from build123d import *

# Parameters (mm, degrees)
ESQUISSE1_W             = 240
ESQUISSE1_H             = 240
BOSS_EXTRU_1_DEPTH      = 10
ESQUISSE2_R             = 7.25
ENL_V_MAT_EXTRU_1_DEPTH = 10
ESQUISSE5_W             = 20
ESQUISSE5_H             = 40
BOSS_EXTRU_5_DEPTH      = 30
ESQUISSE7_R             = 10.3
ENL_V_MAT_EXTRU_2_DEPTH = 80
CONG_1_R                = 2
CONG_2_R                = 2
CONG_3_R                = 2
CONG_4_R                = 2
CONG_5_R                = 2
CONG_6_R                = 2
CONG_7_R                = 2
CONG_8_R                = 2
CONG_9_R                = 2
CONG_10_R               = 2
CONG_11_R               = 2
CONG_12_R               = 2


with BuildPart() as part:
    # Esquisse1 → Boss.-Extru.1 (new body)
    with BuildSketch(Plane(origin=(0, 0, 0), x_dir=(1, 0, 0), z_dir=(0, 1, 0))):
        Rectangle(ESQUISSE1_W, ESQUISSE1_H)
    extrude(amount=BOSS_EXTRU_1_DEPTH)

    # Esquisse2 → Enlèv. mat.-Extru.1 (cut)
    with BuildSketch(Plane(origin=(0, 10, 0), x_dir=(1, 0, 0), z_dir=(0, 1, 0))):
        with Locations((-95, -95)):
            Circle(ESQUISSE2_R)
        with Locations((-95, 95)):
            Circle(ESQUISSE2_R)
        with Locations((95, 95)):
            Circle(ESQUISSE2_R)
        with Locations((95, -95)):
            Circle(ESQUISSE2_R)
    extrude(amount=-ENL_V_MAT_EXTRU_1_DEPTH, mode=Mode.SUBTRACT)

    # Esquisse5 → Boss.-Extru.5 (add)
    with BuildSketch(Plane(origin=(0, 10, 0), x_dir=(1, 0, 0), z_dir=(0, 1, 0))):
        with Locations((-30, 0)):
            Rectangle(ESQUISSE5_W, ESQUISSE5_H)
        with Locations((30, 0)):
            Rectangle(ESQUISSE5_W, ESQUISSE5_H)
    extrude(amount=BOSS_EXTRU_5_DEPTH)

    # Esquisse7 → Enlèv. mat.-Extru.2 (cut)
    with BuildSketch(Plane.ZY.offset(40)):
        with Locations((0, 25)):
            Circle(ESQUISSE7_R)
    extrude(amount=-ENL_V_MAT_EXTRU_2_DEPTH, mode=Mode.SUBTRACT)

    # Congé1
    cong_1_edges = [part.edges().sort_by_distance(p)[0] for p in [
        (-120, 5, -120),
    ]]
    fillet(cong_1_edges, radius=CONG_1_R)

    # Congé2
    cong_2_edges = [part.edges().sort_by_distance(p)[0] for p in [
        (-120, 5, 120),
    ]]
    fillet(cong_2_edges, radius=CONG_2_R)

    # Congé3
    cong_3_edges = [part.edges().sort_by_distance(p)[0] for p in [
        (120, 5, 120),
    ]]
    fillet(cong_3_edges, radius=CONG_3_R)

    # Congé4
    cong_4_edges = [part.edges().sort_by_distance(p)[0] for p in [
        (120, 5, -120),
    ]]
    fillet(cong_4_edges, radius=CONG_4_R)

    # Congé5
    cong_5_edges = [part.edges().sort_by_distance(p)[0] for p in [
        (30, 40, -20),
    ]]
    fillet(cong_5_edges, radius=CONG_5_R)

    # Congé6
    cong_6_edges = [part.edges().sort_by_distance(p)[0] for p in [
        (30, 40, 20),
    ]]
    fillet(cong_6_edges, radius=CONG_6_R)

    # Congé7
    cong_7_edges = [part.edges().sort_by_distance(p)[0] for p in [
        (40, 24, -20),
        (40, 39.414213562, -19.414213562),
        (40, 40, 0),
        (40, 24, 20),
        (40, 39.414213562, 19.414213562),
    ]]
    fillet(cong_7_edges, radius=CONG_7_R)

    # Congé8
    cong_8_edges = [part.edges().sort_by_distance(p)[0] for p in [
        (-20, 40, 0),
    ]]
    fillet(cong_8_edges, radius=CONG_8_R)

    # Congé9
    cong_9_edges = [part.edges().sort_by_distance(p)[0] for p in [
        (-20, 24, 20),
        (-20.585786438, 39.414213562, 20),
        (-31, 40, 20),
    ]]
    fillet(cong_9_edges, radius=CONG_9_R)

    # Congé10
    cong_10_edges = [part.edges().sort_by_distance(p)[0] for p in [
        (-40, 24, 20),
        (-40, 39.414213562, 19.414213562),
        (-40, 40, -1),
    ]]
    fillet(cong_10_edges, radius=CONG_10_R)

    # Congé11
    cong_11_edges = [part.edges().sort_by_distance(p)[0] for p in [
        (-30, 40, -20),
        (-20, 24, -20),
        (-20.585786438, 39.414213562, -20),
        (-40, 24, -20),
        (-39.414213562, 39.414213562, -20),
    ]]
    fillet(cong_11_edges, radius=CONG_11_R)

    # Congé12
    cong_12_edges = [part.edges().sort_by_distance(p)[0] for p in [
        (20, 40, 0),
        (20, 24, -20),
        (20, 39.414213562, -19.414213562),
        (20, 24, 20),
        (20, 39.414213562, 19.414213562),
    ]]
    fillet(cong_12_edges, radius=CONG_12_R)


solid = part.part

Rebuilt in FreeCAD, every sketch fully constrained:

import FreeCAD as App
import Part
import Sketcher

V = App.Vector


def edges_at(feature, points):
    """Names of the edges that pass closest to the given points."""
    edges = feature.Shape.Edges
    near = lambda p: min(range(len(edges)), key=lambda i: edges[i].distToShape(Part.Vertex(*p))[0])
    return sorted({f"Edge{near(p) + 1}" for p in points})

doc = App.newDocument("Part")
body = doc.addObject("PartDesign::Body", "Body")

sketch1 = body.newObject("Sketcher::SketchObject", "Sketch")
sketch1.AttachmentSupport = (doc.getObject("XZ_Plane"), [""])
sketch1.MapMode = "FlatFace"
sketch1.addGeometry([
    Part.LineSegment(V(-120, -120, 0), V(-120, 120, 0)),
    Part.LineSegment(V(-120, 120, 0), V(120, 120, 0)),
    Part.LineSegment(V(120, 120, 0), V(120, -120, 0)),
    Part.LineSegment(V(120, -120, 0), V(-120, -120, 0)),
], False)
sketch1.addConstraint([
    Sketcher.Constraint("Coincident", 0, 2, 1, 1),
    Sketcher.Constraint("Coincident", 1, 2, 2, 1),
    Sketcher.Constraint("Coincident", 2, 2, 3, 1),
    Sketcher.Constraint("Coincident", 3, 2, 0, 1),
    Sketcher.Constraint("Vertical", 0),
    Sketcher.Constraint("Horizontal", 1),
    Sketcher.Constraint("Vertical", 2),
    Sketcher.Constraint("Horizontal", 3),
    Sketcher.Constraint("Symmetric", 0, 2, 2, 2, -1, 1),
    Sketcher.Constraint("Equal", 3, 0),
    Sketcher.Constraint("DistanceX", 1, 1, 1, 2, 240.0),
])
pad1 = body.newObject("PartDesign::Pad", "Pad")
pad1.Profile = sketch1
pad1.Length = 10
pad1.Reversed = True

sketch2 = body.newObject("Sketcher::SketchObject", "Sketch001")
sketch2.AttachmentSupport = (doc.getObject("XZ_Plane"), [""])
sketch2.MapMode = "FlatFace"
sketch2.AttachmentOffset = App.Placement(V(0, 0, -10), App.Rotation())
sketch2.addGeometry([
    Part.Circle(V(-95, 95, 0), V(0, 0, 1), 7),
    Part.Circle(V(-95, -95, 0), V(0, 0, 1), 7),
    Part.Circle(V(95, -95, 0), V(0, 0, 1), 7),
    Part.Circle(V(95, 95, 0), V(0, 0, 1), 7),
], False)
sketch2.addConstraint([
    Sketcher.Constraint("Equal", 0, 1),
    Sketcher.Constraint("Equal", 1, 2),
    Sketcher.Constraint("Equal", 2, 3),
    Sketcher.Constraint("Symmetric", 0, 3, 2, 3, -1, 1),
    Sketcher.Constraint("Symmetric", 1, 3, 3, 3, -1, 1),
    Sketcher.Constraint("Symmetric", 1, 3, 2, 3, -2),
    Sketcher.Constraint("Diameter", 0, 14.5),
    Sketcher.Constraint("DistanceX", 0, 3, -1, 1, 95.0),
    Sketcher.Constraint("DistanceY", -1, 1, 0, 3, 95.0),
])
pocket1 = body.newObject("PartDesign::Pocket", "Pocket")
pocket1.Profile = sketch2
pocket1.Length = 10
pocket1.Reversed = True

sketch3 = body.newObject("Sketcher::SketchObject", "Sketch002")
sketch3.AttachmentSupport = (doc.getObject("XZ_Plane"), [""])
sketch3.MapMode = "FlatFace"
sketch3.AttachmentOffset = App.Placement(V(0, 0, -10), App.Rotation())
sketch3.addGeometry([
    Part.LineSegment(V(-40, -20, 0), V(-40, 20, 0)),
    Part.LineSegment(V(-40, 20, 0), V(-20, 20, 0)),
    Part.LineSegment(V(-20, 20, 0), V(-20, -20, 0)),
    Part.LineSegment(V(-20, -20, 0), V(-40, -20, 0)),
    Part.LineSegment(V(20, -20, 0), V(20, 20, 0)),
    Part.LineSegment(V(20, 20, 0), V(40, 20, 0)),
    Part.LineSegment(V(40, 20, 0), V(40, -20, 0)),
    Part.LineSegment(V(40, -20, 0), V(20, -20, 0)),
], False)
sketch3.addConstraint([
    Sketcher.Constraint("Coincident", 0, 2, 1, 1),
    Sketcher.Constraint("Coincident", 1, 2, 2, 1),
    Sketcher.Constraint("Coincident", 2, 2, 3, 1),
    Sketcher.Constraint("Coincident", 3, 2, 0, 1),
    Sketcher.Constraint("Coincident", 4, 2, 5, 1),
    Sketcher.Constraint("Coincident", 5, 2, 6, 1),
    Sketcher.Constraint("Coincident", 6, 2, 7, 1),
    Sketcher.Constraint("Coincident", 7, 2, 4, 1),
    Sketcher.Constraint("Vertical", 0),
    Sketcher.Constraint("Horizontal", 1),
    Sketcher.Constraint("Vertical", 2),
    Sketcher.Constraint("Horizontal", 3),
    Sketcher.Constraint("Vertical", 4),
    Sketcher.Constraint("Horizontal", 5),
    Sketcher.Constraint("Vertical", 6),
    Sketcher.Constraint("Horizontal", 7),
    Sketcher.Constraint("Symmetric", 2, 2, 4, 2, -1, 1),
    Sketcher.Constraint("Symmetric", 0, 2, 6, 2, -1, 1),
    Sketcher.Constraint("Horizontal", 1, 2, 4, 2),
    Sketcher.Constraint("DistanceX", 1, 1, 1, 2, 20.0),
    Sketcher.Constraint("DistanceY", 0, 1, 0, 2, 40.0),
    Sketcher.Constraint("DistanceX", 0, 2, -1, 1, 40.0),
])
pad2 = body.newObject("PartDesign::Pad", "Pad001")
pad2.Profile = sketch3
pad2.Length = 30
pad2.Reversed = True

sketch4 = body.newObject("Sketcher::SketchObject", "Sketch003")
sketch4.AttachmentSupport = (doc.getObject("YZ_Plane"), [""])
sketch4.MapMode = "FlatFace"
sketch4.AttachmentOffset = App.Placement(V(0, 0, -40), App.Rotation())
sketch4.addGeometry(Part.Circle(V(25, 0, 0), V(0, 0, 1), 10), False)
sketch4.addConstraint([
    Sketcher.Constraint("PointOnObject", 0, 3, -1),
    Sketcher.Constraint("Diameter", 0, 20.6),
    Sketcher.Constraint("DistanceX", -1, 1, 0, 3, 25.0),
])
pocket2 = body.newObject("PartDesign::Pocket", "Pocket001")
pocket2.Profile = sketch4
pocket2.Length = 80
pocket2.Reversed = True
doc.recompute()

fillet = body.newObject("PartDesign::Fillet", "Fillet")
fillet.Base = (pocket2, edges_at(pocket2, [(-120, 5, -120)]))
fillet.Radius = 2
doc.recompute()

fillet2 = body.newObject("PartDesign::Fillet", "Fillet001")
fillet2.Base = (fillet, edges_at(fillet, [(-120, 5, 120)]))
fillet2.Radius = 2
doc.recompute()

fillet3 = body.newObject("PartDesign::Fillet", "Fillet002")
fillet3.Base = (fillet2, edges_at(fillet2, [(120, 5, 120)]))
fillet3.Radius = 2
doc.recompute()

fillet4 = body.newObject("PartDesign::Fillet", "Fillet003")
fillet4.Base = (fillet3, edges_at(fillet3, [(120, 5, -120)]))
fillet4.Radius = 2
doc.recompute()

fillet5 = body.newObject("PartDesign::Fillet", "Fillet004")
fillet5.Base = (fillet4, edges_at(fillet4, [(30, 40, -20)]))
fillet5.Radius = 2
doc.recompute()

fillet6 = body.newObject("PartDesign::Fillet", "Fillet005")
fillet6.Base = (fillet5, edges_at(fillet5, [(30, 40, 20)]))
fillet6.Radius = 2
doc.recompute()

fillet7 = body.newObject("PartDesign::Fillet", "Fillet006")
fillet7.Base = (fillet6, edges_at(fillet6, [
    (40, 24, -20),
    (40, 39.414, -19.414),
    (40, 40, 0),
    (40, 24, 20),
    (40, 39.414, 19.414),
]))
fillet7.Radius = 2
doc.recompute()

fillet8 = body.newObject("PartDesign::Fillet", "Fillet007")
fillet8.Base = (fillet7, edges_at(fillet7, [(-20, 40, 0)]))
fillet8.Radius = 2
doc.recompute()

fillet9 = body.newObject("PartDesign::Fillet", "Fillet008")
fillet9.Base = (fillet8, edges_at(fillet8, [(-20, 24, 20), (-20.586, 39.414, 20), (-31, 40, 20)]))
fillet9.Radius = 2
doc.recompute()

fillet10 = body.newObject("PartDesign::Fillet", "Fillet009")
fillet10.Base = (fillet9, edges_at(fillet9, [(-40, 24, 20), (-40, 39.414, 19.414), (-40, 40, -1)]))
fillet10.Radius = 2
doc.recompute()

fillet11 = body.newObject("PartDesign::Fillet", "Fillet010")
fillet11.Base = (fillet10, edges_at(fillet10, [
    (-30, 40, -20),
    (-20, 24, -20),
    (-20.586, 39.414, -20),
    (-40, 24, -20),
    (-39.414, 39.414, -20),
]))
fillet11.Radius = 2
doc.recompute()

fillet12 = body.newObject("PartDesign::Fillet", "Fillet011")
fillet12.Base = (fillet11, edges_at(fillet11, [
    (20, 40, 0),
    (20, 24, -20),
    (20, 39.414, -19.414),
    (20, 24, 20),
    (20, 39.414, 19.414),
]))
fillet12.Radius = 2

doc.recompute()
